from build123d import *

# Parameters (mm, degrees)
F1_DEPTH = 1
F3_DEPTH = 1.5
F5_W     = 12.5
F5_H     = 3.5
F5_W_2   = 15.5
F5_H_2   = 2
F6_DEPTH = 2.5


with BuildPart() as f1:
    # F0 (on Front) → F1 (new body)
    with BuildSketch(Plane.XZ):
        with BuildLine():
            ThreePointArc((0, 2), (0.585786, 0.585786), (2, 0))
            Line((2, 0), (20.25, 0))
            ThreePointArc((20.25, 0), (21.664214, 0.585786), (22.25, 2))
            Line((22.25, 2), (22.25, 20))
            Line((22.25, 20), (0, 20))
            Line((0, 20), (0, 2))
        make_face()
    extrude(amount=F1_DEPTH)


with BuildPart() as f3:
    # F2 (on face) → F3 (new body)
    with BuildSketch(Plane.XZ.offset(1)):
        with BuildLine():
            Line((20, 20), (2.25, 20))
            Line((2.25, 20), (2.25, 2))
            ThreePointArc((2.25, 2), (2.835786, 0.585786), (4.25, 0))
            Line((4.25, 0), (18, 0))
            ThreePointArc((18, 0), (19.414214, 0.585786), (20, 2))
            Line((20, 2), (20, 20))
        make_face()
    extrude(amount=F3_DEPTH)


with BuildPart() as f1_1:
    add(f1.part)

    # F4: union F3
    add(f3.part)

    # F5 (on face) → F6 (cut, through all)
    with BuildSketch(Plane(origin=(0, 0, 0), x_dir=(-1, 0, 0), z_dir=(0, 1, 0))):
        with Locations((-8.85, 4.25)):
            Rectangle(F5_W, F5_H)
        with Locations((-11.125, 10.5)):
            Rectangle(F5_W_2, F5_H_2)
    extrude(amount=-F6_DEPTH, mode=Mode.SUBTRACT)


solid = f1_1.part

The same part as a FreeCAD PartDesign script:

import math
import FreeCAD as App
import Part
import Sketcher

V = App.Vector


def add_polygon(sketch, points):
    """Adds a closed chain of lines whose ends are joined by coincident constraints."""
    first, n = sketch.GeometryCount, len(points)
    for a, b in zip(points, points[1:] + points[:1]):
        sketch.addGeometry(Part.LineSegment(App.Vector(*a, 0), App.Vector(*b, 0)), False)
    for i in range(n):
        sketch.addConstraint(Sketcher.Constraint("Coincident", first + i, 2, first + (i + 1) % n, 1))

doc = App.newDocument("Part")
body = doc.addObject("PartDesign::Body", "Body")

# Sketch on XZ plane
sketch1 = body.newObject("Sketcher::SketchObject", "Sketch")
sketch1.AttachmentSupport = (doc.getObject("XZ_Plane"), [""])
sketch1.MapMode = "FlatFace"
sketch1.addGeometry([
    Part.ArcOfCircle(Part.Circle(V(1.999999, 1.999999, 0), V(0, 0, 1), 1.999999), math.radians(179.999957), math.radians(270.000043)),  # 0
    Part.LineSegment(V(2, 0, 0), V(20.25, 0, 0)),  # 1
    Part.ArcOfCircle(Part.Circle(V(20.250001, 1.999999, 0), V(0, 0, 1), 1.999999), math.radians(-90.000043), math.radians(0.000043)),  # 2
    Part.LineSegment(V(22.25, 2, 0), V(22.25, 20, 0)),  # 3
    Part.LineSegment(V(22.25, 20, 0), V(0, 20, 0)),  # 4
    Part.LineSegment(V(0, 20, 0), V(0, 2, 0)),  # 5
], False)
sketch1.addConstraint([
    Sketcher.Constraint("Tangent", 0, 2, 1, 1),
    Sketcher.Constraint("Tangent", 1, 2, 2, 1),
    Sketcher.Constraint("Tangent", 2, 2, 3, 1),
    Sketcher.Constraint("Coincident", 3, 2, 4, 1),
    Sketcher.Constraint("Coincident", 4, 2, 5, 1),
    Sketcher.Constraint("Tangent", 5, 2, 0, 1),
    Sketcher.Constraint("Horizontal", 1),
    Sketcher.Constraint("Vertical", 3),
    Sketcher.Constraint("Horizontal", 4),
    Sketcher.Constraint("Vertical", 5),
    Sketcher.Constraint("Equal", 0, 2),
    Sketcher.Constraint("PointOnObject", 0, 2, -1),
    Sketcher.Constraint("PointOnObject", 4, 2, -2),
    Sketcher.Constraint("Radius", 0, 1.999999),
    Sketcher.Constraint("DistanceY", 3, 1, 3, 2, 18.0),
    Sketcher.Constraint("DistanceX", 1, 1, 1, 2, 18.25),
])
pad1 = body.newObject("PartDesign::Pad", "Pad")
pad1.Profile = sketch1
pad1.Length = 1
body2 = doc.addObject("PartDesign::Body", "Body001")

# Sketch on XZ plane
sketch2 = body2.newObject("Sketcher::SketchObject", "Sketch001")
sketch2.AttachmentSupport = (doc.getObject("XZ_Plane001"), [""])
sketch2.MapMode = "FlatFace"
sketch2.AttachmentOffset = App.Placement(V(0, 0, 1), App.Rotation())
sketch2.addGeometry([
    Part.LineSegment(V(20, 20, 0), V(2.25, 20, 0)),  # 0
    Part.LineSegment(V(2.25, 20, 0), V(2.25, 2, 0)),  # 1
    Part.ArcOfCircle(Part.Circle(V(4.249999, 1.999999, 0), V(0, 0, 1), 1.999999), math.radians(179.999957), math.radians(270.000043)),  # 2
    Part.LineSegment(V(4.25, 0, 0), V(18, 0, 0)),  # 3
    Part.ArcOfCircle(Part.Circle(V(18.000001, 1.999999, 0), V(0, 0, 1), 1.999999), math.radians(-90.000043), math.radians(0.000043)),  # 4
    Part.LineSegment(V(20, 2, 0), V(20, 20, 0)),  # 5
], False)
sketch2.addConstraint([
    Sketcher.Constraint("Coincident", 0, 2, 1, 1),
    Sketcher.Constraint("Tangent", 1, 2, 2, 1),
    Sketcher.Constraint("Tangent", 2, 2, 3, 1),
    Sketcher.Constraint("Tangent", 3, 2, 4, 1),
    Sketcher.Constraint("Tangent", 4, 2, 5, 1),
    Sketcher.Constraint("Coincident", 5, 2, 0, 1),
    Sketcher.Constraint("Horizontal", 0),
    Sketcher.Constraint("Vertical", 1),
    Sketcher.Constraint("Horizontal", 3),
    Sketcher.Constraint("Vertical", 5),
    Sketcher.Constraint("Equal", 2, 4),
    Sketcher.Constraint("PointOnObject", 2, 2, -1),
    Sketcher.Constraint("Radius", 2, 1.999999),
    Sketcher.Constraint("DistanceY", 1, 2, 1, 1, 18.0),
    Sketcher.Constraint("DistanceX", -1, 1, 4, 3, 18.000001),
    Sketcher.Constraint("DistanceX", 0, 2, 0, 1, 17.75),
])
pad2 = body2.newObject("PartDesign::Pad", "Pad001")
pad2.Profile = sketch2
pad2.Length = 1.5
doc.recompute()

boolean = body.newObject("PartDesign::Boolean", "Boolean")
boolean.Type = "Fuse"
boolean.addObjects([body2])

# Sketch on XZ plane
sketch3 = body.newObject("Sketcher::SketchObject", "Sketch002")
sketch3.AttachmentSupport = (doc.getObject("XZ_Plane"), [""])
sketch3.MapMode = "FlatFace"
add_polygon(sketch3, [(15.1, 6), (15.1, 2.5), (2.6, 2.5), (2.6, 6)])  # lines 0-3
add_polygon(sketch3, [(18.875, 11.5), (18.875, 9.5), (3.375, 9.5), (3.375, 11.5)])  # lines 4-7
sketch3.addConstraint([
    Sketcher.Constraint("Vertical", 0),
    Sketcher.Constraint("Horizontal", 1),
    Sketcher.Constraint("Vertical", 2),
    Sketcher.Constraint("Horizontal", 3),
    Sketcher.Constraint("Vertical", 4),
    Sketcher.Constraint("Horizontal", 5),
    Sketcher.Constraint("Vertical", 6),
    Sketcher.Constraint("Horizontal", 7),
    Sketcher.Constraint("DistanceY", 4, 2, 4, 1, 2.0),
    Sketcher.Constraint("DistanceX", 1, 2, 1, 1, 12.5),
    Sketcher.Constraint("DistanceX", 5, 2, 5, 1, 15.5),
    Sketcher.Constraint("DistanceY", 0, 2, 0, 1, 3.5),
    Sketcher.Constraint("DistanceY", -1, 1, 2, 2, 6.0),
    Sketcher.Constraint("DistanceY", 0, 2, 4, 2, 7.0),
    Sketcher.Constraint("DistanceX", -1, 1, 0, 2, 15.1),
    Sketcher.Constraint("DistanceX", -1, 1, 4, 2, 18.875),
])
pocket1 = body.newObject("PartDesign::Pocket", "Pocket")
pocket1.Profile = sketch3
pocket1.Type = "ThroughAll"
pocket1.Reversed = True

doc.recompute()
